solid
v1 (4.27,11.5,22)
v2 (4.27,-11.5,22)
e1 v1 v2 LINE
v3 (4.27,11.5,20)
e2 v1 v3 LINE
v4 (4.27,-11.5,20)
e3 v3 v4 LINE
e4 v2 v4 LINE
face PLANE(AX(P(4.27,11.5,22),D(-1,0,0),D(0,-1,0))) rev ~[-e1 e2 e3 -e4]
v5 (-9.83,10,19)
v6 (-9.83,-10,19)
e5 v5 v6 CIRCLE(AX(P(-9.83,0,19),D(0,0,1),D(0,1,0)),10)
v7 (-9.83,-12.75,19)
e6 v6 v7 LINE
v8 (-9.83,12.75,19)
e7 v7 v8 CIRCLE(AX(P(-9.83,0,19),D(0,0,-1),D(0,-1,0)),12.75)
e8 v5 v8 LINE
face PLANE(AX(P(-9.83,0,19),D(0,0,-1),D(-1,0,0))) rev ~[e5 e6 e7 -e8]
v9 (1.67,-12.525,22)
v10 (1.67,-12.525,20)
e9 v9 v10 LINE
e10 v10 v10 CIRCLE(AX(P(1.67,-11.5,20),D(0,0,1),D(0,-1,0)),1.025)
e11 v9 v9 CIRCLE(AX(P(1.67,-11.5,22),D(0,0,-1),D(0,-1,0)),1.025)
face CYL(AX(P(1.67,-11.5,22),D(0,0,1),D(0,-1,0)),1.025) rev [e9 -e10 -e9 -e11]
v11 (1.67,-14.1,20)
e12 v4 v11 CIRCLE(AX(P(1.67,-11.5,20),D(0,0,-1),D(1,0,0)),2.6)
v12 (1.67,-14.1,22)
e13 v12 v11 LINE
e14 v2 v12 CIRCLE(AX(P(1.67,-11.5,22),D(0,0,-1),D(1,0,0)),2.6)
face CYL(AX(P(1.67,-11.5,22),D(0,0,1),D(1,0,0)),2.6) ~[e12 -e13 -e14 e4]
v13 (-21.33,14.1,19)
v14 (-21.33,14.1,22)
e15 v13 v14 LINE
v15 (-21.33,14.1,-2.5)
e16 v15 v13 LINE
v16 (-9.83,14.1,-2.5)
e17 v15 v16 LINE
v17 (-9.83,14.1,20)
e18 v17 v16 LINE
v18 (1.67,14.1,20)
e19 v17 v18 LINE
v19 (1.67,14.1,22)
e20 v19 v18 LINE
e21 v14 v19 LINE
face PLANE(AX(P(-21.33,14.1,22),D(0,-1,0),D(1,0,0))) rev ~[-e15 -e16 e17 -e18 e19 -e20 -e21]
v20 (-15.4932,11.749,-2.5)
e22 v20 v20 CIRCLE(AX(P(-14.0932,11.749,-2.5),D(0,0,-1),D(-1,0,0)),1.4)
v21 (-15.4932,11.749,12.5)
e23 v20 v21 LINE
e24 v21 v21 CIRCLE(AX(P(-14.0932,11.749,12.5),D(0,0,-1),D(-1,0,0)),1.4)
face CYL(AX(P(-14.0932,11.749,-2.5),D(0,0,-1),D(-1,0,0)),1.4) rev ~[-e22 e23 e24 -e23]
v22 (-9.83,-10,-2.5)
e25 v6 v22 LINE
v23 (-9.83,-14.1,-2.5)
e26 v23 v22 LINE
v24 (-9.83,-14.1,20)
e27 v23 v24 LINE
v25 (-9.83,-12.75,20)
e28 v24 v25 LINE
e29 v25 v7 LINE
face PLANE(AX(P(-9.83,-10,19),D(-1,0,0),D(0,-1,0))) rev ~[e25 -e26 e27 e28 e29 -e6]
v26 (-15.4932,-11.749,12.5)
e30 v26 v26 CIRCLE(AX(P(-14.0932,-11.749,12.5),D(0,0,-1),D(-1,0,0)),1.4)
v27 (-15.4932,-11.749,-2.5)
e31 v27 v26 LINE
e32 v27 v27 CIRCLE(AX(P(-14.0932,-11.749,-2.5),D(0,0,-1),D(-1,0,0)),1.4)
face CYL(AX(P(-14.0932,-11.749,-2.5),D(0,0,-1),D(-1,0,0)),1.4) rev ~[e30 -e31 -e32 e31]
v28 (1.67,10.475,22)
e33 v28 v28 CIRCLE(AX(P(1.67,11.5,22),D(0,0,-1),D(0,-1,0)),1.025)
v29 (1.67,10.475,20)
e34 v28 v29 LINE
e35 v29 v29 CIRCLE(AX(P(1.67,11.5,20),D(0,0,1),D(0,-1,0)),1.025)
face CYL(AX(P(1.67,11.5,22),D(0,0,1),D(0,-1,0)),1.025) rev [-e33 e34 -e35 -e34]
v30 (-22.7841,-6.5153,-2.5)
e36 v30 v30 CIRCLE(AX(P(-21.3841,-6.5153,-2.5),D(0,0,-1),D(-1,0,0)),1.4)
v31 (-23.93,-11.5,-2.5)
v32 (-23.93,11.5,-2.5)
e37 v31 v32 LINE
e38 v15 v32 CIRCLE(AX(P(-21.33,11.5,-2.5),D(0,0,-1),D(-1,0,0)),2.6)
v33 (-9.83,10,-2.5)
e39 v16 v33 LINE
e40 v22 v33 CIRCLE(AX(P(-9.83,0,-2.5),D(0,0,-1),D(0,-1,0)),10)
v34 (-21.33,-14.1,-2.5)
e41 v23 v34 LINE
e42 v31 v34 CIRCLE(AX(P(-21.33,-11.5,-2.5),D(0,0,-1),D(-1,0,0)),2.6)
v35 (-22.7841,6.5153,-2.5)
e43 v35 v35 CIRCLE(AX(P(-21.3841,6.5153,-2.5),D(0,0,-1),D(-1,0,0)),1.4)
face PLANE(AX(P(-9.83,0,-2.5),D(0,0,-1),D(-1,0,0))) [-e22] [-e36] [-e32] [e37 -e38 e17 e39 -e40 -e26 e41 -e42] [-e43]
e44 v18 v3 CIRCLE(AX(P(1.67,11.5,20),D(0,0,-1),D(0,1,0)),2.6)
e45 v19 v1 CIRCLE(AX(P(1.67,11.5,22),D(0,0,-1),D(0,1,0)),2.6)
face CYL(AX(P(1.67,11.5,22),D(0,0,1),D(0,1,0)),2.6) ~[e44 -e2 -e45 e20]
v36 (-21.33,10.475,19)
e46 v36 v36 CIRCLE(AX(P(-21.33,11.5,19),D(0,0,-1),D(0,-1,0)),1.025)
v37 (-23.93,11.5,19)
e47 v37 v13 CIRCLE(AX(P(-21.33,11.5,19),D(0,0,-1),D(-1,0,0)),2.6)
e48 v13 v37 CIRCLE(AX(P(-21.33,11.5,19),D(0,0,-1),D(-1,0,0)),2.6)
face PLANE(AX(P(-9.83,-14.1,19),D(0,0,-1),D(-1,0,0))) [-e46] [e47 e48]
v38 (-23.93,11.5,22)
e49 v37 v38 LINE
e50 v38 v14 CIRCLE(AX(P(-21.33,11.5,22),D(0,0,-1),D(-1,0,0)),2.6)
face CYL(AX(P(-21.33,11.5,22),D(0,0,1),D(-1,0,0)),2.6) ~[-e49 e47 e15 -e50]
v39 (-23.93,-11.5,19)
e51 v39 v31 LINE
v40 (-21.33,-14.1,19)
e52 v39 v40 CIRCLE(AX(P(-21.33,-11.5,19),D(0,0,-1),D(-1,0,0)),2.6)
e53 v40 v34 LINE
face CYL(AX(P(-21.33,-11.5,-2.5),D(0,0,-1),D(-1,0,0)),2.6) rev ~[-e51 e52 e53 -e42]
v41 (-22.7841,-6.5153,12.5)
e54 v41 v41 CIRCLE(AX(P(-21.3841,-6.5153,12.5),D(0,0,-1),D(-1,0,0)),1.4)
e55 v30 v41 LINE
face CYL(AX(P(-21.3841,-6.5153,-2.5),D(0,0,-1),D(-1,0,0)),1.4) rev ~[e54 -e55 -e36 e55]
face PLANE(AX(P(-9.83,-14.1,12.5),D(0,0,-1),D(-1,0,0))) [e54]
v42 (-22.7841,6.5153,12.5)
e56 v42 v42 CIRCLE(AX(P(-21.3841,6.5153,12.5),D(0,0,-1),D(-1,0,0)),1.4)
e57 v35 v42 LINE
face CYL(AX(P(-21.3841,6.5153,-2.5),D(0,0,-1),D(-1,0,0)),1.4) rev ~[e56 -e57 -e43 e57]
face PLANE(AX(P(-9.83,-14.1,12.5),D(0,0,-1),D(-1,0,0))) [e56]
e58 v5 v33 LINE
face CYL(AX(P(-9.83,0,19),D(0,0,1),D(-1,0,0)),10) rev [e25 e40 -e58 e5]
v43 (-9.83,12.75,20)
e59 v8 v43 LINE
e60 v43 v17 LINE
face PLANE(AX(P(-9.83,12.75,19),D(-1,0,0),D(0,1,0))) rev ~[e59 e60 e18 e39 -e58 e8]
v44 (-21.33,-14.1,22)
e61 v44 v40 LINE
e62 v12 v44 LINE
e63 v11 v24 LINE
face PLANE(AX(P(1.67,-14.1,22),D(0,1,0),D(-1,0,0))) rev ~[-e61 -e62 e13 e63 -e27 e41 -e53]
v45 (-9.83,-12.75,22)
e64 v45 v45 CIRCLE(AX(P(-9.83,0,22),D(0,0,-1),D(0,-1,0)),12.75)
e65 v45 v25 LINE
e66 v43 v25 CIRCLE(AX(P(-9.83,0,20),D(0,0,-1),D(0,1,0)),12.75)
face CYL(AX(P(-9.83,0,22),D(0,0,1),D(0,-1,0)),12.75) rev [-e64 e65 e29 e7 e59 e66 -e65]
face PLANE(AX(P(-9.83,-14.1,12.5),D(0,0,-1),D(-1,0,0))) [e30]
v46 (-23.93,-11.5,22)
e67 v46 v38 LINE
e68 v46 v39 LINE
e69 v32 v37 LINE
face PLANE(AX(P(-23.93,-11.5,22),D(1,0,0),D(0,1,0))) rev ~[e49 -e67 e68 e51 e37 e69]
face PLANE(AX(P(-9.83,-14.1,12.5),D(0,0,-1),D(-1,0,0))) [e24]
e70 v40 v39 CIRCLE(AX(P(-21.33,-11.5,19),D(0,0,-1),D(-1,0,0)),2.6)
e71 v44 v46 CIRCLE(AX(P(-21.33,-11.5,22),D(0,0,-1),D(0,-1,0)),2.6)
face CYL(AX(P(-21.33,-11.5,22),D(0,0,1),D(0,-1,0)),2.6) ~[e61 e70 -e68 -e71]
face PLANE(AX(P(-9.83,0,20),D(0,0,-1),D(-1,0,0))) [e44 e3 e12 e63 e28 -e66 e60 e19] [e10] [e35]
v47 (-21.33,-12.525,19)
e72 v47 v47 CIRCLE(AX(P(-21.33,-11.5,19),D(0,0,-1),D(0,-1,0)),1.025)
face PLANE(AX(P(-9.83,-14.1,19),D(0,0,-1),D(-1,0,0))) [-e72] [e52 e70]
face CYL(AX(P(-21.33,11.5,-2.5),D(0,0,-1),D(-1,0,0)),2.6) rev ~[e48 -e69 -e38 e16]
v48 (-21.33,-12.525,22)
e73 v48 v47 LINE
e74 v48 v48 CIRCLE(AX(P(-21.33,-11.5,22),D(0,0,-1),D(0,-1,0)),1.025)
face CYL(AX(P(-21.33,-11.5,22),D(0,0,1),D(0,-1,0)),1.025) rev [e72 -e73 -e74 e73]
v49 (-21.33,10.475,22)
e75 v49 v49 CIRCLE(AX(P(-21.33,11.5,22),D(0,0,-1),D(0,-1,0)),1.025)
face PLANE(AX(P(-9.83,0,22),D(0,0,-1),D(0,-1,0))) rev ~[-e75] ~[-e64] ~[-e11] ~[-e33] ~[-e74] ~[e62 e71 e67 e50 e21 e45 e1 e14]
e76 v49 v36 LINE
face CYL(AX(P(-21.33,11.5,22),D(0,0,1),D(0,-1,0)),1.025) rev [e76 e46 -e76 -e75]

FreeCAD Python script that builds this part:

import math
import FreeCAD as App
import Part
import Sketcher

V = App.Vector
Q = App.Units.Quantity

doc = App.newDocument("Part")
body = doc.addObject("PartDesign::Body", "Body")

# Sketch on XY plane
sketch1 = doc.addObject("Sketcher::SketchObject", "Sketch")
body.addObject(sketch1)
sketch1.AttachmentSupport = (doc.XY_Plane, [""])
sketch1.MapMode = "FlatFace"
sketch1.AttachmentOffset = App.Placement(V(0, 0, 22), App.Rotation())
sketch1.addGeometry(Part.ArcOfCircle(Part.Circle(V(1.7, -11.5, 0), V(0, 0, 1), 2.6), math.radians(-90), math.radians(0)), False)
sketch1.addGeometry(Part.LineSegment(V(1.7, -14.1, 0), V(-21.3, -14.1, 0)), False)
sketch1.addGeometry(Part.ArcOfCircle(Part.Circle(V(-21.3, -11.5, 0), V(0, 0, 1), 2.6), math.radians(180), math.radians(270)), False)
sketch1.addGeometry(Part.LineSegment(V(-23.9, -11.5, 0), V(-23.9, 11.5, 0)), False)
sketch1.addGeometry(Part.ArcOfCircle(Part.Circle(V(-21.3, 11.5, 0), V(0, 0, 1), 2.6), math.radians(90), math.radians(180)), False)
sketch1.addGeometry(Part.LineSegment(V(-21.3, 14.1, 0), V(1.7, 14.1, 0)), False)
sketch1.addGeometry(Part.ArcOfCircle(Part.Circle(V(1.7, 11.5, 0), V(0, 0, 1), 2.6), math.radians(0), math.radians(90)), False)
sketch1.addGeometry(Part.LineSegment(V(4.3, 11.5, 0), V(4.3, -11.5, 0)), False)
sketch1.addGeometry(Part.Circle(V(1.7, 11.5, 0), V(0, 0, 1), 1), False)
sketch1.addGeometry(Part.Circle(V(1.7, -11.5, 0), V(0, 0, 1), 1), False)
sketch1.addGeometry(Part.Circle(V(-21.3, 11.5, 0), V(0, 0, 1), 1), False)
sketch1.addGeometry(Part.Circle(V(-9.8, 0, 0), V(0, 0, 1), 12.8), False)
sketch1.addGeometry(Part.Circle(V(-21.3, -11.5, 0), V(0, 0, 1), 1), False)
sketch1.addConstraint(Sketcher.Constraint("Tangent", 0, 1, 1, 1))
sketch1.addConstraint(Sketcher.Constraint("Tangent", 1, 2, 2, 2))
sketch1.addConstraint(Sketcher.Constraint("Tangent", 2, 1, 3, 1))
sketch1.addConstraint(Sketcher.Constraint("Tangent", 3, 2, 4, 2))
sketch1.addConstraint(Sketcher.Constraint("Tangent", 4, 1, 5, 1))
sketch1.addConstraint(Sketcher.Constraint("Tangent", 5, 2, 6, 2))
sketch1.addConstraint(Sketcher.Constraint("Tangent", 6, 1, 7, 1))
sketch1.addConstraint(Sketcher.Constraint("Tangent", 7, 2, 0, 2))
sketch1.addConstraint(Sketcher.Constraint("Horizontal", 1))
sketch1.addConstraint(Sketcher.Constraint("Vertical", 3))
sketch1.addConstraint(Sketcher.Constraint("Horizontal", 5))
sketch1.addConstraint(Sketcher.Constraint("Vertical", 7))
sketch1.addConstraint(Sketcher.Constraint("Coincident", 8, 3, 6, 3))
sketch1.addConstraint(Sketcher.Constraint("Coincident", 9, 3, 0, 3))
sketch1.addConstraint(Sketcher.Constraint("Coincident", 10, 3, 4, 3))
sketch1.addConstraint(Sketcher.Constraint("Coincident", 12, 3, 2, 3))
sketch1.addConstraint(Sketcher.Constraint("Equal", 0, 2))
sketch1.addConstraint(Sketcher.Constraint("Equal", 2, 4))
sketch1.addConstraint(Sketcher.Constraint("Equal", 4, 6))
sketch1.addConstraint(Sketcher.Constraint("Equal", 8, 9))
sketch1.addConstraint(Sketcher.Constraint("Equal", 9, 10))
sketch1.addConstraint(Sketcher.Constraint("Equal", 10, 12))
sketch1.addConstraint(Sketcher.Constraint("PointOnObject", 11, 3, -1))
sketch1.addConstraint(Sketcher.Constraint("Equal", 5, 3))
sketch1.addConstraint(Sketcher.Constraint("Diameter", 11, Q("25.5 mm")))
sketch1.addConstraint(Sketcher.Constraint("Radius", 0, Q("2.6 mm")))
sketch1.addConstraint(Sketcher.Constraint("Diameter", 8, Q("2.05 mm")))
sketch1.addConstraint(Sketcher.Constraint("DistanceX", 1, 2, 1, 1, Q("23 mm")))
sketch1.addConstraint(Sketcher.Constraint("DistanceY", 0, 3, -1, 1, Q("11.5 mm")))
sketch1.addConstraint(Sketcher.Constraint("DistanceX", 11, 3, 0, 3, Q("11.5 mm")))
sketch1.addConstraint(Sketcher.Constraint("DistanceX", -1, 1, 0, 3, Q("1.67 mm")))
pad1 = doc.addObject("PartDesign::Pad", "Pad")
body.addObject(pad1)
pad1.Profile = sketch1
pad1.Length = 3
pad1.Reversed = True

# Sketch on XY plane
sketch2 = doc.addObject("Sketcher::SketchObject", "Sketch001")
body.addObject(sketch2)
sketch2.AttachmentSupport = (doc.XY_Plane, [""])
sketch2.MapMode = "FlatFace"
sketch2.AttachmentOffset = App.Placement(V(0, 0, 19), App.Rotation())
sketch2.addGeometry(Part.LineSegment(V(-9.8, -10, 0), V(-9.8, -14.1, 0)), False)
sketch2.addGeometry(Part.LineSegment(V(-9.8, -14.1, 0), V(-21.3, -14.1, 0)), False)
sketch2.addGeometry(Part.ArcOfCircle(Part.Circle(V(-21.3, -11.5, 0), V(0, 0, 1), 2.6), math.radians(180), math.radians(270)), False)
sketch2.addGeometry(Part.LineSegment(V(-23.9, -11.5, 0), V(-23.9, 11.5, 0)), False)
sketch2.addGeometry(Part.ArcOfCircle(Part.Circle(V(-21.3, 11.5, 0), V(0, 0, 1), 2.6), math.radians(90), math.radians(180)), False)
sketch2.addGeometry(Part.LineSegment(V(-21.3, 14.1, 0), V(-9.8, 14.1, 0)), False)
sketch2.addGeometry(Part.LineSegment(V(-9.8, 14.1, 0), V(-9.8, 10, 0)), False)
sketch2.addGeometry(Part.ArcOfCircle(Part.Circle(V(-9.8, 0, 0), V(0, 0, 1), 10), math.radians(90), math.radians(270)), False)
sketch2.addGeometry(Part.Circle(V(-21.3, -11.5, 0), V(0, 0, 1), 1), False)
sketch2.addGeometry(Part.Circle(V(-21.3, 11.5, 0), V(0, 0, 1), 1), False)
sketch2.addConstraint(Sketcher.Constraint("Coincident", 0, 2, 1, 1))
sketch2.addConstraint(Sketcher.Constraint("Tangent", 1, 2, 2, 2))
sketch2.addConstraint(Sketcher.Constraint("Tangent", 2, 1, 3, 1))
sketch2.addConstraint(Sketcher.Constraint("Tangent", 3, 2, 4, 2))
sketch2.addConstraint(Sketcher.Constraint("Tangent", 4, 1, 5, 1))
sketch2.addConstraint(Sketcher.Constraint("Coincident", 5, 2, 6, 1))
sketch2.addConstraint(Sketcher.Constraint("Coincident", 6, 2, 7, 1))
sketch2.addConstraint(Sketcher.Constraint("Coincident", 7, 2, 0, 1))
sketch2.addConstraint(Sketcher.Constraint("Vertical", 0))
sketch2.addConstraint(Sketcher.Constraint("Horizontal", 1))
sketch2.addConstraint(Sketcher.Constraint("Vertical", 3))
sketch2.addConstraint(Sketcher.Constraint("Horizontal", 5))
sketch2.addConstraint(Sketcher.Constraint("Vertical", 6))
sketch2.addConstraint(Sketcher.Constraint("Coincident", 8, 3, 2, 3))
sketch2.addConstraint(Sketcher.Constraint("Coincident", 9, 3, 4, 3))
sketch2.addConstraint(Sketcher.Constraint("Equal", 2, 4))
sketch2.addConstraint(Sketcher.Constraint("Equal", 8, 9))
sketch2.addConstraint(Sketcher.Constraint("Symmetric", 0, 2, 5, 2, -1))
sketch2.addConstraint(Sketcher.Constraint("PointOnObject", 7, 3, -1))
sketch2.addConstraint(Sketcher.Constraint("Vertical", 7, 3, 0, 2))
sketch2.addConstraint(Sketcher.Constraint("Radius", 7, Q("10 mm")))
sketch2.addConstraint(Sketcher.Constraint("Radius", 2, Q("2.6 mm")))
sketch2.addConstraint(Sketcher.Constraint("Diameter", 8, Q("2.05 mm")))
sketch2.addConstraint(Sketcher.Constraint("DistanceY", 3, 1, 3, 2, Q("23 mm")))
sketch2.addConstraint(Sketcher.Constraint("DistanceX", 1, 2, 1, 1, Q("11.5 mm")))
sketch2.addConstraint(Sketcher.Constraint("DistanceX", 2, 3, -1, 1, Q("21.33 mm")))
pad2 = doc.addObject("PartDesign::Pad", "Pad001")
body.addObject(pad2)
pad2.Profile = sketch2
pad2.Length = 21.5
pad2.Reversed = True

# Sketch on XY plane
sketch3 = doc.addObject("Sketcher::SketchObject", "Sketch002")
body.addObject(sketch3)
sketch3.AttachmentSupport = (doc.XY_Plane, [""])
sketch3.MapMode = "FlatFace"
sketch3.AttachmentOffset = App.Placement(V(0, 0, -2.5), App.Rotation())
sketch3.addGeometry(Part.Circle(V(-14.1, -11.7, 0), V(0, 0, 1), 1.4), False)
sketch3.addGeometry(Part.Circle(V(-21.4, -6.5, 0), V(0, 0, 1), 1.4), False)
sketch3.addGeometry(Part.Circle(V(-14.1, 11.7, 0), V(0, 0, 1), 1.4), False)
sketch3.addGeometry(Part.Circle(V(-21.4, 6.5, 0), V(0, 0, 1), 1.4), False)
sketch3.addConstraint(Sketcher.Constraint("Equal", 0, 1))
sketch3.addConstraint(Sketcher.Constraint("Equal", 1, 2))
sketch3.addConstraint(Sketcher.Constraint("Equal", 2, 3))
sketch3.addConstraint(Sketcher.Constraint("Symmetric", 0, 3, 2, 3, -1))
sketch3.addConstraint(Sketcher.Constraint("Symmetric", 1, 3, 3, 3, -1))
sketch3.addConstraint(Sketcher.Constraint("Diameter", 0, Q("2.8 mm")))
sketch3.addConstraint(Sketcher.Constraint("DistanceY", 0, 3, -1, 1, Q("11.749 mm")))
sketch3.addConstraint(Sketcher.Constraint("DistanceX", 1, 3, -1, 1, Q("21.384 mm")))
sketch3.addConstraint(Sketcher.Constraint("DistanceX", 1, 3, 0, 3, Q("7.291 mm")))
sketch3.addConstraint(Sketcher.Constraint("DistanceY", 1, 3, -1, 1, Q("6.5153 mm")))
pocket1 = doc.addObject("PartDesign::Pocket", "Pocket")
body.addObject(pocket1)
pocket1.Profile = sketch3
pocket1.Length = 15
pocket1.Reversed = True

# Sketch on XY plane
sketch4 = doc.addObject("Sketcher::SketchObject", "Sketch003")
body.addObject(sketch4)
sketch4.AttachmentSupport = (doc.XY_Plane, [""])
sketch4.MapMode = "FlatFace"
sketch4.AttachmentOffset = App.Placement(V(0, 0, -2.5), App.Rotation())
sketch4.addGeometry(Part.Circle(V(-21.3, -11.5, 0), V(0, 0, 1), 2.6), False)
sketch4.addGeometry(Part.Circle(V(-21.3, 11.5, 0), V(0, 0, 1), 2.6), False)
sketch4.addConstraint(Sketcher.Constraint("Equal", 0, 1))
sketch4.addConstraint(Sketcher.Constraint("Symmetric", 0, 3, 1, 3, -1))
sketch4.addConstraint(Sketcher.Constraint("Diameter", 0, Q("5.2 mm")))
sketch4.addConstraint(Sketcher.Constraint("DistanceY", 0, 3, 1, 3, Q("23 mm")))
sketch4.addConstraint(Sketcher.Constraint("DistanceX", 0, 3, -1, 1, Q("21.33 mm")))
pocket2 = doc.addObject("PartDesign::Pocket", "Pocket001")
body.addObject(pocket2)
pocket2.Profile = sketch4
pocket2.Length = 21.5
pocket2.Reversed = True

# Sketch on XY plane
sketch5 = doc.addObject("Sketcher::SketchObject", "Sketch004")
body.addObject(sketch5)
sketch5.AttachmentSupport = (doc.XY_Plane, [""])
sketch5.MapMode = "FlatFace"
sketch5.AttachmentOffset = App.Placement(V(0, 0, 19), App.Rotation())
sketch5.addGeometry(Part.LineSegment(V(1.7, -14.1, 0), V(-9.8, -14.1, 0)), False)
sketch5.addGeometry(Part.LineSegment(V(-9.8, -14.1, 0), V(-9.8, -12.8, 0)), False)
sketch5.addGeometry(Part.ArcOfCircle(Part.Circle(V(-9.8, 0, 0), V(0, 0, 1), 12.8), math.radians(-90), math.radians(90)), False)
sketch5.addGeometry(Part.LineSegment(V(-9.8, 12.8, 0), V(-9.8, 14.1, 0)), False)
sketch5.addGeometry(Part.LineSegment(V(-9.8, 14.1, 0), V(1.7, 14.1, 0)), False)
sketch5.addGeometry(Part.ArcOfCircle(Part.Circle(V(1.7, 11.5, 0), V(0, 0, 1), 2.6), math.radians(0), math.radians(90)), False)
sketch5.addGeometry(Part.LineSegment(V(4.3, 11.5, 0), V(4.3, -11.5, 0)), False)
sketch5.addGeometry(Part.ArcOfCircle(Part.Circle(V(1.7, -11.5, 0), V(0, 0, 1), 2.6), math.radians(-90), math.radians(0)), False)
sketch5.addGeometry(Part.Circle(V(1.7, -11.5, 0), V(0, 0, 1), 1), False)
sketch5.addGeometry(Part.Circle(V(1.7, 11.5, 0), V(0, 0, 1), 1), False)
sketch5.addConstraint(Sketcher.Constraint("Coincident", 0, 2, 1, 1))
sketch5.addConstraint(Sketcher.Constraint("Coincident", 1, 2, 2, 1))
sketch5.addConstraint(Sketcher.Constraint("Coincident", 2, 2, 3, 1))
sketch5.addConstraint(Sketcher.Constraint("Coincident", 3, 2, 4, 1))
sketch5.addConstraint(Sketcher.Constraint("Tangent", 4, 2, 5, 2))
sketch5.addConstraint(Sketcher.Constraint("Tangent", 5, 1, 6, 1))
sketch5.addConstraint(Sketcher.Constraint("Tangent", 6, 2, 7, 2))
sketch5.addConstraint(Sketcher.Constraint("Tangent", 7, 1, 0, 1))
sketch5.addConstraint(Sketcher.Constraint("Horizontal", 0))
sketch5.addConstraint(Sketcher.Constraint("Vertical", 1))
sketch5.addConstraint(Sketcher.Constraint("Vertical", 3))
sketch5.addConstraint(Sketcher.Constraint("Horizontal", 4))
sketch5.addConstraint(Sketcher.Constraint("Vertical", 6))
sketch5.addConstraint(Sketcher.Constraint("Coincident", 8, 3, 7, 3))
sketch5.addConstraint(Sketcher.Constraint("Coincident", 9, 3, 5, 3))
sketch5.addConstraint(Sketcher.Constraint("Equal", 5, 7))
sketch5.addConstraint(Sketcher.Constraint("Equal", 8, 9))
sketch5.addConstraint(Sketcher.Constraint("Symmetric", 1, 2, 2, 2, -1))
sketch5.addConstraint(Sketcher.Constraint("Vertical", 2, 3, 0, 2))
sketch5.addConstraint(Sketcher.Constraint("Equal", 1, 3))
sketch5.addConstraint(Sketcher.Constraint("Radius", 5, Q("2.6 mm")))
sketch5.addConstraint(Sketcher.Constraint("Diameter", 8, Q("2.05 mm")))
sketch5.addConstraint(Sketcher.Constraint("DistanceY", 6, 2, 6, 1, Q("23 mm")))
sketch5.addConstraint(Sketcher.Constraint("Radius", 2, Q("12.75 mm")))
sketch5.addConstraint(Sketcher.Constraint("DistanceX", 0, 2, 0, 1, Q("11.5 mm")))
sketch5.addConstraint(Sketcher.Constraint("DistanceX", 2, 3, -1, 1, Q("9.83 mm")))
pocket3 = doc.addObject("PartDesign::Pocket", "Pocket002")
body.addObject(pocket3)
pocket3.Profile = sketch5
pocket3.Length = 1
pocket3.Reversed = True

doc.recompute()
